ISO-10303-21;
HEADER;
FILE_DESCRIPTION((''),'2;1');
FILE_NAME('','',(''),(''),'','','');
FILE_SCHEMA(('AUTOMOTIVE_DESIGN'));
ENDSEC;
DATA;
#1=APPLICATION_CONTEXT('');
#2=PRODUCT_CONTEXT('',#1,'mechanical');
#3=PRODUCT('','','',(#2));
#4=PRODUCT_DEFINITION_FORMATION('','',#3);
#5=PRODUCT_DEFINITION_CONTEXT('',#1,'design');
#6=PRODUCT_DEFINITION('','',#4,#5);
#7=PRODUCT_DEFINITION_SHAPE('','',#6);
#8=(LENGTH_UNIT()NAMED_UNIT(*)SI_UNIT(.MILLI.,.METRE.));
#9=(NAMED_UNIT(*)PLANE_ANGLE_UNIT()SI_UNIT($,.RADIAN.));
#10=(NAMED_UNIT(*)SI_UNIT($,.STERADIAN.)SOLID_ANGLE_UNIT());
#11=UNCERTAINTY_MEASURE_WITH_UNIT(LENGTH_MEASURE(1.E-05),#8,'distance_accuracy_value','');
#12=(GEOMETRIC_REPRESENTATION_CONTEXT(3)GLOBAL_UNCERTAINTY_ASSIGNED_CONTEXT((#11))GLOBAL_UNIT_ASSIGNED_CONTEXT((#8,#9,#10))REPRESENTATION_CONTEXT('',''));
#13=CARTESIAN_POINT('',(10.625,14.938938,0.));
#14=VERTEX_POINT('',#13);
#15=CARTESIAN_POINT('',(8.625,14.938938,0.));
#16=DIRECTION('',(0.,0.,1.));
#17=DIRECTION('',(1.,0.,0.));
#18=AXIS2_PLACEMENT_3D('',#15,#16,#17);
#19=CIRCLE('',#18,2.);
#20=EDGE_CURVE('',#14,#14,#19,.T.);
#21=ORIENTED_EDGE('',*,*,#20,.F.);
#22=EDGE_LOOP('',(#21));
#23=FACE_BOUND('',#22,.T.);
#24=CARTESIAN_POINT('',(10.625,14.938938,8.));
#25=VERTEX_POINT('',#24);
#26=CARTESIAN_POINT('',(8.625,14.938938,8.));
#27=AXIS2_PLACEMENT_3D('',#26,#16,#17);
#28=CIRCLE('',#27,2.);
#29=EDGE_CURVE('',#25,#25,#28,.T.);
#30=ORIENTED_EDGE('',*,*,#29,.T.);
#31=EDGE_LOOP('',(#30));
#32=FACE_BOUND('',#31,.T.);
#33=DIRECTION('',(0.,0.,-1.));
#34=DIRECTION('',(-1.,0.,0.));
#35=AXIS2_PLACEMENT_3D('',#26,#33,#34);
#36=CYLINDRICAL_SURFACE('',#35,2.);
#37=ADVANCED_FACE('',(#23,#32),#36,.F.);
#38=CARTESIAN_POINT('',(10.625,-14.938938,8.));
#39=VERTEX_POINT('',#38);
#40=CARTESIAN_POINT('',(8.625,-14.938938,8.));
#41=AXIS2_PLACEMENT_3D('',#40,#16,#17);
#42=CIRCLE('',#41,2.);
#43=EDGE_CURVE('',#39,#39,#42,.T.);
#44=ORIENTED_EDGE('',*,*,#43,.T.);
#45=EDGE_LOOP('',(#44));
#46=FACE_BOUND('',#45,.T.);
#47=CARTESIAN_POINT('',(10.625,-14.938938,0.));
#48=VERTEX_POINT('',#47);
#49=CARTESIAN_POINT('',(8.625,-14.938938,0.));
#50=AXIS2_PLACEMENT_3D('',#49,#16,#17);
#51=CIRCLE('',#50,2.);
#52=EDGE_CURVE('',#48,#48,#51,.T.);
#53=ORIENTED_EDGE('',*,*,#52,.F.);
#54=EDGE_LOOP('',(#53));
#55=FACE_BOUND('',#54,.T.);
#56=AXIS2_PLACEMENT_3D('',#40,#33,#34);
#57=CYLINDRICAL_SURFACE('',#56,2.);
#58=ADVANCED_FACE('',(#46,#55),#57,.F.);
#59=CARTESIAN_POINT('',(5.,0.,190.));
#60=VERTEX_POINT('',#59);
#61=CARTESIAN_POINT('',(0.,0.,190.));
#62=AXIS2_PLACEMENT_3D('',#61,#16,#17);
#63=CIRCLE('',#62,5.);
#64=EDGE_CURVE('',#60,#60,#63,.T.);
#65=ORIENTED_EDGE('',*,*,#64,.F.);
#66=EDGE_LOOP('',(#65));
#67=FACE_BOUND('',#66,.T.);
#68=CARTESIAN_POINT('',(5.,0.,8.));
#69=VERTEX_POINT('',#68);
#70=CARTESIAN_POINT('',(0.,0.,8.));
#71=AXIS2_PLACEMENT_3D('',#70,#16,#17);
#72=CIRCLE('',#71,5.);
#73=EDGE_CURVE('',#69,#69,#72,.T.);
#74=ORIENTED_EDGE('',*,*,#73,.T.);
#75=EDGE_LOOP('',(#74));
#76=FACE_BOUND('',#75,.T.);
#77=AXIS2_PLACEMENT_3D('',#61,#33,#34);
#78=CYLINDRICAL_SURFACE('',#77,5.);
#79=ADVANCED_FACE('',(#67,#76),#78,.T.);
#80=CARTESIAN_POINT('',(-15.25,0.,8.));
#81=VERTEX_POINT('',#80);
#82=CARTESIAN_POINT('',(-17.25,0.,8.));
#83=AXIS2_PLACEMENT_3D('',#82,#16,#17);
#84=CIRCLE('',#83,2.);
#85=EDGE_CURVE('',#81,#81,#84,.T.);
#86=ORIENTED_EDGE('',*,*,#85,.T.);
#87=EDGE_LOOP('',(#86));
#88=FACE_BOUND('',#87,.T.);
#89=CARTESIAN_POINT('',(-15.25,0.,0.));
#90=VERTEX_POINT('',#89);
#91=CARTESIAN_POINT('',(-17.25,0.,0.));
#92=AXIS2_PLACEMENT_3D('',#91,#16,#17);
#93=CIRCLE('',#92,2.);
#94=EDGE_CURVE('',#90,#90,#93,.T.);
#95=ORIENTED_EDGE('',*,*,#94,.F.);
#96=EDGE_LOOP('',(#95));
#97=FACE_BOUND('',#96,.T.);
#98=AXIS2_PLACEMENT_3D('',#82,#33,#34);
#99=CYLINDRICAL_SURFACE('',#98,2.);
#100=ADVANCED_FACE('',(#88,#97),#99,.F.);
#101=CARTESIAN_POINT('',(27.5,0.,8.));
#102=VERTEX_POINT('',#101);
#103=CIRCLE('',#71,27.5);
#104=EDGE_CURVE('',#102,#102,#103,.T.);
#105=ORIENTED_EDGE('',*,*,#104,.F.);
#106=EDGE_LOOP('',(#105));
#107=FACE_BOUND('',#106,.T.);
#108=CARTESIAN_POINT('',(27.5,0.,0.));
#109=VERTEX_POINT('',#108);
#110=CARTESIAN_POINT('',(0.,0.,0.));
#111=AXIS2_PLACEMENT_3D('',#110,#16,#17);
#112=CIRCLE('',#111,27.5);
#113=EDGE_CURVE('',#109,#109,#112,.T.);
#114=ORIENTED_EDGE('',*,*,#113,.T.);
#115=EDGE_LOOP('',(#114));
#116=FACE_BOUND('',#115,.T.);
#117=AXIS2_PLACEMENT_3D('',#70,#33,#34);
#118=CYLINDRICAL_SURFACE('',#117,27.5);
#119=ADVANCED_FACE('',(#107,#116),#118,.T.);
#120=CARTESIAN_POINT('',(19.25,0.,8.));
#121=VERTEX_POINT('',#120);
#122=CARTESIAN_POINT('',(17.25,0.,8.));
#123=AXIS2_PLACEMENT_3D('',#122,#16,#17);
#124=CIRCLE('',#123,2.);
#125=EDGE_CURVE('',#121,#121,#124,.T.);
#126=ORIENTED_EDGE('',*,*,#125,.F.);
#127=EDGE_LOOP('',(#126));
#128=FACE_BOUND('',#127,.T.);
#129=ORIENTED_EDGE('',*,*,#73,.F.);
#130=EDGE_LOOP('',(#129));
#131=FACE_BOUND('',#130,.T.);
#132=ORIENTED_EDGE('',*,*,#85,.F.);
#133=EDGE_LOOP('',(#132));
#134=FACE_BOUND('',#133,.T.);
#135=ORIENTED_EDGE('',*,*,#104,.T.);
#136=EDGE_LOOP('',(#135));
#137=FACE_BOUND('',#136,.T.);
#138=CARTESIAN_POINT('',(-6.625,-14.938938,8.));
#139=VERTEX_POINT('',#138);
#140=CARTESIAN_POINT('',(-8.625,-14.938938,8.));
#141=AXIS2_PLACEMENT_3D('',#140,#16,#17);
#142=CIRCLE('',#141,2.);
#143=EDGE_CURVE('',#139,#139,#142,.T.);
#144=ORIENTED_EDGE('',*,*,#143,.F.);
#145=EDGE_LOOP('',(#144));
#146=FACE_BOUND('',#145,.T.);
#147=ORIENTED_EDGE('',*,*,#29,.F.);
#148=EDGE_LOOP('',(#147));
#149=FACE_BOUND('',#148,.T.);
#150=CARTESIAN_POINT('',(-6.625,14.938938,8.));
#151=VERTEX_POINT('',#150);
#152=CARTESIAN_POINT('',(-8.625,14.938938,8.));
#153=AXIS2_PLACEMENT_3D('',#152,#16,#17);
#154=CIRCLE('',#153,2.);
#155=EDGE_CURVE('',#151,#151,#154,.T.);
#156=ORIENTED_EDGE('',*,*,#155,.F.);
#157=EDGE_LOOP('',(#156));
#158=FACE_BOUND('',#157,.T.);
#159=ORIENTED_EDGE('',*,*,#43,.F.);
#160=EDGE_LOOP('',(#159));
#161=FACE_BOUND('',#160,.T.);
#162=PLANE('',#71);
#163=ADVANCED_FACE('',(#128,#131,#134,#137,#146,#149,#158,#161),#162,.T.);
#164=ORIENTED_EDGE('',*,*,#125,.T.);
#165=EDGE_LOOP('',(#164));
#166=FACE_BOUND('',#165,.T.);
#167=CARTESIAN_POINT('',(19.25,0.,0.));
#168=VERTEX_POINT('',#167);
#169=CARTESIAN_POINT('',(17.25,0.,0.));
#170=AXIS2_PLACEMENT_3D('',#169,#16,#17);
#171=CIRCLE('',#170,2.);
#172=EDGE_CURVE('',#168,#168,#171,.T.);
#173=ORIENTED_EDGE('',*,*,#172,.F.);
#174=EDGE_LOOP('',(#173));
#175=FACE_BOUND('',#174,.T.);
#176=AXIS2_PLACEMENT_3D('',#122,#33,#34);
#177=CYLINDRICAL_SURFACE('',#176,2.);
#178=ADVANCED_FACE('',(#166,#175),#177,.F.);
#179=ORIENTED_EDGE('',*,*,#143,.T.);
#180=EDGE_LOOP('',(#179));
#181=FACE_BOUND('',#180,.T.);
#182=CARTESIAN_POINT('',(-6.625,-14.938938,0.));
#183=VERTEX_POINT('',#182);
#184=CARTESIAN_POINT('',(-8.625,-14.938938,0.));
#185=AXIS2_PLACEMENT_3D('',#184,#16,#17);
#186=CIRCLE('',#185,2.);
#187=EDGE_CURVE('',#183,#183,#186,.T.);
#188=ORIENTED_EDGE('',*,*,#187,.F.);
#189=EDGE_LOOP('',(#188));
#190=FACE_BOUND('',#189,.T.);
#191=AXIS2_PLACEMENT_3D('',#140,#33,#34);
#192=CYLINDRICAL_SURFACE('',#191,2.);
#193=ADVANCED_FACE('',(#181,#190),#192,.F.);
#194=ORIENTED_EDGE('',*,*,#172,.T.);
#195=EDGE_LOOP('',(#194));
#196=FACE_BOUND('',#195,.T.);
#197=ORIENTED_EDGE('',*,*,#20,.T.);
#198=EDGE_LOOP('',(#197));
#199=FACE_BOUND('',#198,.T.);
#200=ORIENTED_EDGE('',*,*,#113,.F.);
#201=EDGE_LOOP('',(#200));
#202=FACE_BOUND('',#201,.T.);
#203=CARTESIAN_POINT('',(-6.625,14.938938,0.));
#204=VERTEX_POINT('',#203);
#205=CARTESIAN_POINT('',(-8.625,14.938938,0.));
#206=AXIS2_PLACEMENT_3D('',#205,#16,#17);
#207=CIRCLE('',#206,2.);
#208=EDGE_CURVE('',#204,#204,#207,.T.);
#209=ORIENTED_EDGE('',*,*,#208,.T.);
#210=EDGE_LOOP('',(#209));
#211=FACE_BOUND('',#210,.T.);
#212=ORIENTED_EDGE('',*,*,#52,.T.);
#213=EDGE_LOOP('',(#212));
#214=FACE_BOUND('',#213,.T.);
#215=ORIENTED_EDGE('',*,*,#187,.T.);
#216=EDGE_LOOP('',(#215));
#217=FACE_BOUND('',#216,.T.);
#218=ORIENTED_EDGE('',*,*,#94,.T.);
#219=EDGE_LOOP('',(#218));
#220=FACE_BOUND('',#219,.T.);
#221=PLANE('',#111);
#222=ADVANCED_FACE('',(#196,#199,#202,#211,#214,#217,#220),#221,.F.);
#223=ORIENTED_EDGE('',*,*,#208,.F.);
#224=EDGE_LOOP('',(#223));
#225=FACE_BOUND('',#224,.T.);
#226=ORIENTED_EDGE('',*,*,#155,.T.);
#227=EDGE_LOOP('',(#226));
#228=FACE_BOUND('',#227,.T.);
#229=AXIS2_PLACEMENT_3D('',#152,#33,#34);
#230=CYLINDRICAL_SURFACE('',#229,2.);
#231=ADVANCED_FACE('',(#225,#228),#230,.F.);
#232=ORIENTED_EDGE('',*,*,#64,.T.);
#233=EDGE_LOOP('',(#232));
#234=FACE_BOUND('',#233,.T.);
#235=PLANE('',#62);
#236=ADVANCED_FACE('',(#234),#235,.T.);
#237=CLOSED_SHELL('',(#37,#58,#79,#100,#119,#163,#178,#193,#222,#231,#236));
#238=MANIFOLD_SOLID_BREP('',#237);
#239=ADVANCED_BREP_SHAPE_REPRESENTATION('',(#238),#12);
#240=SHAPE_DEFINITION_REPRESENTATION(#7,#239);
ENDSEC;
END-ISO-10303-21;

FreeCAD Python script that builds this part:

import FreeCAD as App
import Part
import Sketcher
from FreeCAD import Vector

doc = App.newDocument("Part")
body = doc.addObject("PartDesign::Body", "Body")

# Sketch on XY plane
sketch1 = body.newObject("Sketcher::SketchObject", "Sketch")
sketch1.AttachmentSupport = (doc.getObject("XY_Plane"), [""])
sketch1.MapMode = "FlatFace"
sketch1.addGeometry(Part.Circle(Vector(0, 0, 0), Vector(0, 0, 1), 27.5), False)
sketch1.addGeometry(Part.Circle(Vector(-8.6, -14.9, 0), Vector(0, 0, 1), 2), False)
sketch1.addGeometry(Part.Circle(Vector(-17.2, 0, 0), Vector(0, 0, 1), 2), False)
sketch1.addGeometry(Part.Circle(Vector(8.6, -14.9, 0), Vector(0, 0, 1), 2), False)
sketch1.addGeometry(Part.Circle(Vector(17.2, 0, 0), Vector(0, 0, 1), 2), False)
sketch1.addGeometry(Part.Circle(Vector(-8.6, 14.9, 0), Vector(0, 0, 1), 2), False)
sketch1.addGeometry(Part.Circle(Vector(8.6, 14.9, 0), Vector(0, 0, 1), 2), False)
sketch1.addConstraint(Sketcher.Constraint("Coincident", 0, 3, -1, 1))
sketch1.addConstraint(Sketcher.Constraint("Equal", 1, 2))
sketch1.addConstraint(Sketcher.Constraint("Equal", 2, 3))
sketch1.addConstraint(Sketcher.Constraint("Equal", 3, 4))
sketch1.addConstraint(Sketcher.Constraint("Equal", 4, 5))
sketch1.addConstraint(Sketcher.Constraint("Equal", 5, 6))
sketch1.addConstraint(Sketcher.Constraint("Symmetric", 2, 3, 4, 3, -1, 1))
sketch1.addConstraint(Sketcher.Constraint("Symmetric", 3, 3, 5, 3, -1, 1))
sketch1.addConstraint(Sketcher.Constraint("Symmetric", 1, 3, 6, 3, -1, 1))
sketch1.addConstraint(Sketcher.Constraint("Symmetric", 1, 3, 3, 3, -2))
sketch1.addConstraint(Sketcher.Constraint("PointOnObject", 2, 3, -1))
sketch1.addConstraint(Sketcher.Constraint("Diameter", 0, 55.0))
sketch1.addConstraint(Sketcher.Constraint("Diameter", 1, 4.0))
sketch1.addConstraint(Sketcher.Constraint("DistanceX", 2, 3, 4, 3, 34.5))
sketch1.addConstraint(Sketcher.Constraint("DistanceX", 1, 3, 3, 3, 17.25))
sketch1.addConstraint(Sketcher.Constraint("DistanceY", 1, 3, -1, 1, 14.938938))
pad1 = body.newObject("PartDesign::Pad", "Pad")
pad1.Profile = sketch1
pad1.Length = 8

# Sketch on XY plane
sketch2 = body.newObject("Sketcher::SketchObject", "Sketch001")
sketch2.AttachmentSupport = (doc.getObject("XY_Plane"), [""])
sketch2.MapMode = "FlatFace"
sketch2.AttachmentOffset = App.Placement(Vector(0, 0, 8), App.Rotation())
sketch2.addGeometry(Part.Circle(Vector(0, 0, 0), Vector(0, 0, 1), 5), False)
sketch2.addConstraint(Sketcher.Constraint("Coincident", 0, 3, -1, 1))
sketch2.addConstraint(Sketcher.Constraint("Diameter", 0, 10.0))
pad2 = body.newObject("PartDesign::Pad", "Pad001")
pad2.Profile = sketch2
pad2.Length = 182

doc.recompute()
